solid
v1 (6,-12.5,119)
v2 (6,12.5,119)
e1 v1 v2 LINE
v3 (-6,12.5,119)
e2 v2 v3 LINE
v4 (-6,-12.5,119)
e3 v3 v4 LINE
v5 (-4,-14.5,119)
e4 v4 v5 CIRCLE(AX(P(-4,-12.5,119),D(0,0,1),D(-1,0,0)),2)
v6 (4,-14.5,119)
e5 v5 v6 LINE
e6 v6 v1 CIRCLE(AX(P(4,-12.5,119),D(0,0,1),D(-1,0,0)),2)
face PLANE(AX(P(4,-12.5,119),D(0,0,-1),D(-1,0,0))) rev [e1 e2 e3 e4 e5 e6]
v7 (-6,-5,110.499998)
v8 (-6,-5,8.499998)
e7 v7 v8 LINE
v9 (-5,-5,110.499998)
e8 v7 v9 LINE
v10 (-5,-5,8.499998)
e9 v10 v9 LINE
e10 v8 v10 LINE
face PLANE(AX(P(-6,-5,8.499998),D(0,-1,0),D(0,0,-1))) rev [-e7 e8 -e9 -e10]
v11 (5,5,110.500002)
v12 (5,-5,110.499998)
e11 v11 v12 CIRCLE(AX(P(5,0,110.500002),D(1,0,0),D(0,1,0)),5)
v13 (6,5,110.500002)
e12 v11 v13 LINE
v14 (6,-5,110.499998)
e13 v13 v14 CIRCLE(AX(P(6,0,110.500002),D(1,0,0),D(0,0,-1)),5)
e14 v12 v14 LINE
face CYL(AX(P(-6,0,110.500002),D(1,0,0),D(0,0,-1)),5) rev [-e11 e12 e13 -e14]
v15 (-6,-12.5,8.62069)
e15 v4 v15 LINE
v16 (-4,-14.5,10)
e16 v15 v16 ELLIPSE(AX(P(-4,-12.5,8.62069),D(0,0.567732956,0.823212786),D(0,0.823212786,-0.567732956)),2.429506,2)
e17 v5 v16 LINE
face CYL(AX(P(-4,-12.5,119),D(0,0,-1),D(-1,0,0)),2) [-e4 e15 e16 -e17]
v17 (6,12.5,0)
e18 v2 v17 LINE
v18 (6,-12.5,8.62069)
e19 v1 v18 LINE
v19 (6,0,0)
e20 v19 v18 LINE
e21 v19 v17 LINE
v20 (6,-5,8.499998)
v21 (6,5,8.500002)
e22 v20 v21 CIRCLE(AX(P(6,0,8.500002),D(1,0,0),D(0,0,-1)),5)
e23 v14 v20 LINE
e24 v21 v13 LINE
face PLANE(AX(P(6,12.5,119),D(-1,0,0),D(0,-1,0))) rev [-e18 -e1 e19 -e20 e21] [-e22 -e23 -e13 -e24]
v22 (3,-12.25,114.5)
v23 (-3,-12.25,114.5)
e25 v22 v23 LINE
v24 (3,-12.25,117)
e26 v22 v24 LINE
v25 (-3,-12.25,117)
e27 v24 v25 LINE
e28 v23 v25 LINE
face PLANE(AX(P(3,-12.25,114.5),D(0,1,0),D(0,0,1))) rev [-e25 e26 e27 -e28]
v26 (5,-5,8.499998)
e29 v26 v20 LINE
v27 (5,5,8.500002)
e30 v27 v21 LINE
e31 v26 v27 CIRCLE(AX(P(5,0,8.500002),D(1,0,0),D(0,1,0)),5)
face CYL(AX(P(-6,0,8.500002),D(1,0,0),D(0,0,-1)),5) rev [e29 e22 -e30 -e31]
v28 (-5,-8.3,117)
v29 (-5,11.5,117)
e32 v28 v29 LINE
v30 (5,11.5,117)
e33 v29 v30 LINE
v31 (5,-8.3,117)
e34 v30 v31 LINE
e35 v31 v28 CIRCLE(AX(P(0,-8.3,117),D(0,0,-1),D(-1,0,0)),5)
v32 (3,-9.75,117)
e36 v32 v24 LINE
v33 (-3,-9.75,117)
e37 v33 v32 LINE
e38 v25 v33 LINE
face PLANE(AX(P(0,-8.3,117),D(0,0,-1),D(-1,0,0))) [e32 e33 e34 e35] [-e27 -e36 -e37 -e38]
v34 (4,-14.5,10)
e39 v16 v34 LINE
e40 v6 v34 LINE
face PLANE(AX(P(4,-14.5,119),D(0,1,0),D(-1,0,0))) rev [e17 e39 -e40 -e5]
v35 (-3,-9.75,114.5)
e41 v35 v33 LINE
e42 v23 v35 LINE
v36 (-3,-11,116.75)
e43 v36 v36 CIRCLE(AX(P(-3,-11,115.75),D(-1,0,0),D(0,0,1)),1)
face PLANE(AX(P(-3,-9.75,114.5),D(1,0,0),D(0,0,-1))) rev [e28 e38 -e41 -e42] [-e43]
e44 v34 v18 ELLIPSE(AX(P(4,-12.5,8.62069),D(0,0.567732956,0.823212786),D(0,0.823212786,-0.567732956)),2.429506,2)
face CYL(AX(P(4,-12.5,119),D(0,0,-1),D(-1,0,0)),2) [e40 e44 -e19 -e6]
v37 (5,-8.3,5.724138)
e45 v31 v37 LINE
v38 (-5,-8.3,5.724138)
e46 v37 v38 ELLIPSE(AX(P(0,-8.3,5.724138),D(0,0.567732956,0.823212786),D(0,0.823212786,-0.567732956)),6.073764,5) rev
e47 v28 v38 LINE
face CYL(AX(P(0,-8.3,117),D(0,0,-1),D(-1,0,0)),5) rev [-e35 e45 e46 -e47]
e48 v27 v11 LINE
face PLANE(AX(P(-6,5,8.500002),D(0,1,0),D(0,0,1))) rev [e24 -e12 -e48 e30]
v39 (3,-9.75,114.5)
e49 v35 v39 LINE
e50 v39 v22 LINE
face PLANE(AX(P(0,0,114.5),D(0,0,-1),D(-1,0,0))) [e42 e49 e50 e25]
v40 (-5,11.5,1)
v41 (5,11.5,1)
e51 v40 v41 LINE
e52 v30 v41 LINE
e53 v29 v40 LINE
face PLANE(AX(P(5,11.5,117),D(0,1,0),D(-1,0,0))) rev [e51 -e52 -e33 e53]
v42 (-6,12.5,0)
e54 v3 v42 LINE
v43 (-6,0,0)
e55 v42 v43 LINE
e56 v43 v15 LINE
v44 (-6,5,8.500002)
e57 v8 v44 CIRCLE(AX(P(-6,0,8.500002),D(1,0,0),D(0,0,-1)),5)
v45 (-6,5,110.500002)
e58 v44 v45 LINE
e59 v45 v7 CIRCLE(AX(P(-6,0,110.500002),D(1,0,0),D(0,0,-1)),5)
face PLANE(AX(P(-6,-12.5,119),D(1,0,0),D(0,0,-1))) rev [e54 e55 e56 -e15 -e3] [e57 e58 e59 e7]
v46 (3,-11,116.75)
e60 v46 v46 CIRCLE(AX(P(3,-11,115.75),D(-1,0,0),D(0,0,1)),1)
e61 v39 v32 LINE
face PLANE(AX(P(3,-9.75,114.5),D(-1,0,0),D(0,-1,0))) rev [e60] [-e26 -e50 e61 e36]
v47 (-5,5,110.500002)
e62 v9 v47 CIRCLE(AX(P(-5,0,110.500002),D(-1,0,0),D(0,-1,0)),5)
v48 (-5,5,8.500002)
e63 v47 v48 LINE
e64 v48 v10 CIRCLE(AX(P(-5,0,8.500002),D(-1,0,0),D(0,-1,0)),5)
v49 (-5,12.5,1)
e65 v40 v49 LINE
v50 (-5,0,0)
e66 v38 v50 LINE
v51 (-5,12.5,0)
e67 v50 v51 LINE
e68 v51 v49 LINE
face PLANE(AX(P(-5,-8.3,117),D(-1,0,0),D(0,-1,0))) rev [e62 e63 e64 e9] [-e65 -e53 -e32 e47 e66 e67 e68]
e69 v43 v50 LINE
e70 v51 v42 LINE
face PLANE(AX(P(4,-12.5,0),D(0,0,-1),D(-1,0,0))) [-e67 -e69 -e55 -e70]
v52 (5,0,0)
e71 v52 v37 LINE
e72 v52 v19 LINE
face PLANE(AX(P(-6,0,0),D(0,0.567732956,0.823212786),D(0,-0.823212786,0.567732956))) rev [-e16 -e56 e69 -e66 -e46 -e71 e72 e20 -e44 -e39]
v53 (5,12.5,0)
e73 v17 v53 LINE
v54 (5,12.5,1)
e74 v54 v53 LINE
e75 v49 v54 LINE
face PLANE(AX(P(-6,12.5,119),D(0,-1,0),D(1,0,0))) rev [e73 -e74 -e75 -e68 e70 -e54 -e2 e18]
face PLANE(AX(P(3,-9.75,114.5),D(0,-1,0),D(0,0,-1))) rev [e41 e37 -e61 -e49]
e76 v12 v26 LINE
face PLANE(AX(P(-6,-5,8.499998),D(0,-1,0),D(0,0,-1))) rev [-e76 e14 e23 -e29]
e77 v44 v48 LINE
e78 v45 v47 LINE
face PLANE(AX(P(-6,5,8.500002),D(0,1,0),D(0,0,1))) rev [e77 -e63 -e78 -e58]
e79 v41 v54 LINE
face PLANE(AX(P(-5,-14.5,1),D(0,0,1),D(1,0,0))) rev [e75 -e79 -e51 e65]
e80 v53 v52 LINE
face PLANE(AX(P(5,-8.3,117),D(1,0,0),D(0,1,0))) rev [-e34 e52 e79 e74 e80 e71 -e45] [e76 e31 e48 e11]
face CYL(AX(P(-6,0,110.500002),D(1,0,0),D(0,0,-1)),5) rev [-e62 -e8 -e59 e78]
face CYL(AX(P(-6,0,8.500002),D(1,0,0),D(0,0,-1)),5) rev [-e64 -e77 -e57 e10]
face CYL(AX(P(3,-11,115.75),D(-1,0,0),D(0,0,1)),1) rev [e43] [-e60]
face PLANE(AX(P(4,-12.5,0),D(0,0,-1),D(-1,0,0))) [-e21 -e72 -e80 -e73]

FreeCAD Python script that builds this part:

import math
import FreeCAD as App
import Part
import Sketcher


def add_polygon(sketch, points):
    """Adds a closed chain of lines whose ends are joined by coincident constraints."""
    first, n = sketch.GeometryCount, len(points)
    for a, b in zip(points, points[1:] + points[:1]):
        sketch.addGeometry(Part.LineSegment(App.Vector(*a, 0), App.Vector(*b, 0)), False)
    for i in range(n):
        sketch.addConstraint(Sketcher.Constraint("Coincident", first + i, 2, first + (i + 1) % n, 1))

doc = App.newDocument("Part")
body = doc.addObject("PartDesign::Body", "Body")

# Sketch on XY plane
sketch1 = doc.addObject("Sketcher::SketchObject", "Sketch")
body.addObject(sketch1)
sketch1.AttachmentSupport = (doc.XY_Plane, [""])
sketch1.MapMode = "FlatFace"
sketch1.addGeometry(Part.LineSegment(App.Vector(6, 12.5, 0), App.Vector(-6, 12.5, 0)), False)
sketch1.addGeometry(Part.LineSegment(App.Vector(-6, 12.5, 0), App.Vector(-6, -12.5, 0)), False)
sketch1.addGeometry(Part.ArcOfCircle(Part.Circle(App.Vector(-4, -12.5, 0), App.Vector(0, 0, 1), 2), math.radians(-180), math.radians(-90)), False)
sketch1.addGeometry(Part.LineSegment(App.Vector(-4, -14.5, 0), App.Vector(4, -14.5, 0)), False)
sketch1.addGeometry(Part.ArcOfCircle(Part.Circle(App.Vector(4, -12.5, 0), App.Vector(0, 0, 1), 2), math.radians(-90), math.radians(0)), False)
sketch1.addGeometry(Part.LineSegment(App.Vector(6, -12.5, 0), App.Vector(6, 12.5, 0)), False)
sketch1.addConstraint(Sketcher.Constraint("Coincident", 0, 2, 1, 1))
sketch1.addConstraint(Sketcher.Constraint("Tangent", 1, 2, 2, 1))
sketch1.addConstraint(Sketcher.Constraint("Tangent", 2, 2, 3, 1))
sketch1.addConstraint(Sketcher.Constraint("Tangent", 3, 2, 4, 1))
sketch1.addConstraint(Sketcher.Constraint("Tangent", 4, 2, 5, 1))
sketch1.addConstraint(Sketcher.Constraint("Coincident", 5, 2, 0, 1))
sketch1.addConstraint(Sketcher.Constraint("Horizontal", 0))
sketch1.addConstraint(Sketcher.Constraint("Vertical", 1))
sketch1.addConstraint(Sketcher.Constraint("Horizontal", 3))
sketch1.addConstraint(Sketcher.Constraint("Vertical", 5))
sketch1.addConstraint(Sketcher.Constraint("Equal", 2, 4))
sketch1.addConstraint(Sketcher.Constraint("Symmetric", 0, 2, 4, 2, -1, 1))
sketch1.addConstraint(Sketcher.Constraint("Radius", 2, 2.0))
sketch1.addConstraint(Sketcher.Constraint("DistanceX", 0, 2, 0, 1, 12.0))
sketch1.addConstraint(Sketcher.Constraint("DistanceY", 1, 2, 1, 1, 25.0))
pad1 = doc.addObject("PartDesign::Pad", "Pad")
body.addObject(pad1)
pad1.Profile = sketch1
pad1.Length = 119

# Sketch on XY plane
sketch2 = doc.addObject("Sketcher::SketchObject", "Sketch001")
body.addObject(sketch2)
sketch2.AttachmentSupport = (doc.XY_Plane, [""])
sketch2.MapMode = "FlatFace"
sketch2.addGeometry(Part.LineSegment(App.Vector(5, 11.5, 0), App.Vector(5, -8.3, 0)), False)
sketch2.addGeometry(Part.ArcOfCircle(Part.Circle(App.Vector(0, -8.3, 0), App.Vector(0, 0, 1), 5), math.radians(180), math.radians(360)), False)
sketch2.addGeometry(Part.LineSegment(App.Vector(-5, -8.3, 0), App.Vector(-5, 11.5, 0)), False)
sketch2.addGeometry(Part.LineSegment(App.Vector(-5, 11.5, 0), App.Vector(5, 11.5, 0)), False)
sketch2.addConstraint(Sketcher.Constraint("Tangent", 0, 2, 1, 2))
sketch2.addConstraint(Sketcher.Constraint("Tangent", 1, 1, 2, 1))
sketch2.addConstraint(Sketcher.Constraint("Coincident", 2, 2, 3, 1))
sketch2.addConstraint(Sketcher.Constraint("Coincident", 3, 2, 0, 1))
sketch2.addConstraint(Sketcher.Constraint("Vertical", 0))
sketch2.addConstraint(Sketcher.Constraint("Vertical", 2))
sketch2.addConstraint(Sketcher.Constraint("Horizontal", 3))
sketch2.addConstraint(Sketcher.Constraint("PointOnObject", 1, 3, -2))
sketch2.addConstraint(Sketcher.Constraint("Radius", 1, 5.0))
sketch2.addConstraint(Sketcher.Constraint("DistanceY", 0, 2, 0, 1, 19.8))
sketch2.addConstraint(Sketcher.Constraint("DistanceY", 1, 3, -1, 1, 8.3))
pocket1 = doc.addObject("PartDesign::Pocket", "Pocket")
body.addObject(pocket1)
pocket1.Profile = sketch2
pocket1.Length = 117
pocket1.Reversed = True

# Sketch on YZ plane
sketch3 = doc.addObject("Sketcher::SketchObject", "Sketch002")
body.addObject(sketch3)
sketch3.AttachmentSupport = (doc.YZ_Plane, [""])
sketch3.MapMode = "FlatFace"
sketch3.AttachmentOffset = App.Placement(App.Vector(0, 0, 6), App.Rotation())
sketch3.addGeometry(Part.LineSegment(App.Vector(-5, 110.499998, 0), App.Vector(-5, 8.499998, 0)), False)
sketch3.addGeometry(Part.ArcOfCircle(Part.Circle(App.Vector(0, 8.500002, 0), App.Vector(0, 0, 1), 5), math.radians(-179.99995), math.radians(0)), False)
sketch3.addGeometry(Part.LineSegment(App.Vector(5, 8.500002, 0), App.Vector(5, 110.500002, 0)), False)
sketch3.addGeometry(Part.ArcOfCircle(Part.Circle(App.Vector(0, 110.500002, 0), App.Vector(0, 0, 1), 5), math.radians(0), math.radians(180.00005)), False)
sketch3.addConstraint(Sketcher.Constraint("Tangent", 0, 2, 1, 1))
sketch3.addConstraint(Sketcher.Constraint("Tangent", 1, 2, 2, 1))
sketch3.addConstraint(Sketcher.Constraint("Tangent", 2, 2, 3, 1))
sketch3.addConstraint(Sketcher.Constraint("Tangent", 3, 2, 0, 1))
sketch3.addConstraint(Sketcher.Constraint("Vertical", 0))
sketch3.addConstraint(Sketcher.Constraint("Vertical", 2))
sketch3.addConstraint(Sketcher.Constraint("PointOnObject", 1, 3, -2))
sketch3.addConstraint(Sketcher.Constraint("Radius", 1, 5.0))
sketch3.addConstraint(Sketcher.Constraint("DistanceY", 0, 2, 0, 1, 102.0))
sketch3.addConstraint(Sketcher.Constraint("DistanceY", -1, 1, 1, 3, 8.500002))
pocket2 = doc.addObject("PartDesign::Pocket", "Pocket001")
body.addObject(pocket2)
pocket2.Profile = sketch3
pocket2.Type = "ThroughAll"

# Sketch on XZ plane
sketch4 = doc.addObject("Sketcher::SketchObject", "Sketch003")
body.addObject(sketch4)
sketch4.AttachmentSupport = (doc.XZ_Plane, [""])
sketch4.MapMode = "FlatFace"
sketch4.AttachmentOffset = App.Placement(App.Vector(0, 0, -12.5), App.Rotation())
add_polygon(sketch4, [(-5, -1), (-5, 1), (5, 1), (5, -1)])  # lines 0-3
sketch4.addConstraint(Sketcher.Constraint("Vertical", 0))
sketch4.addConstraint(Sketcher.Constraint("Horizontal", 1))
sketch4.addConstraint(Sketcher.Constraint("Vertical", 2))
sketch4.addConstraint(Sketcher.Constraint("Horizontal", 3))
sketch4.addConstraint(Sketcher.Constraint("Symmetric", 0, 2, 2, 2, -1, 1))
sketch4.addConstraint(Sketcher.Constraint("DistanceX", 1, 1, 1, 2, 10.0))
sketch4.addConstraint(Sketcher.Constraint("DistanceY", 0, 1, 0, 2, 2.0))
pocket3 = doc.addObject("PartDesign::Pocket", "Pocket002")
body.addObject(pocket3)
pocket3.Profile = sketch4
pocket3.Type = "ThroughAll"
pocket3.Reversed = True

# Sketch on YZ plane
sketch5 = doc.addObject("Sketcher::SketchObject", "Sketch004")
body.addObject(sketch5)
sketch5.AttachmentSupport = (doc.YZ_Plane, [""])
sketch5.MapMode = "FlatFace"
add_polygon(sketch5, [(0, 0), (-14.5, 10), (-14.5, 0)])  # lines 0-2
sketch5.addConstraint(Sketcher.Constraint("Vertical", 1))
sketch5.addConstraint(Sketcher.Constraint("Horizontal", 2))
sketch5.addConstraint(Sketcher.Constraint("Coincident", 2, 2, -1, 1))
sketch5.addConstraint(Sketcher.Constraint("DistanceY", 1, 2, 1, 1, 10.0))
sketch5.addConstraint(Sketcher.Constraint("DistanceX", 2, 1, 2, 2, 14.5))
pocket4 = doc.addObject("PartDesign::Pocket", "Pocket003")
body.addObject(pocket4)
pocket4.Profile = sketch5
pocket4.Type = "ThroughAll"
pocket4.Midplane = True

# Sketch on XY plane
sketch6 = doc.addObject("Sketcher::SketchObject", "Sketch005")
body.addObject(sketch6)
sketch6.AttachmentSupport = (doc.XY_Plane, [""])
sketch6.MapMode = "FlatFace"
sketch6.AttachmentOffset = App.Placement(App.Vector(0, 0, 117), App.Rotation())
add_polygon(sketch6, [(3, -9.75), (3, -12.25), (-3, -12.25), (-3, -9.75)])  # lines 0-3
sketch6.addConstraint(Sketcher.Constraint("Vertical", 0))
sketch6.addConstraint(Sketcher.Constraint("Horizontal", 1))
sketch6.addConstraint(Sketcher.Constraint("Vertical", 2))
sketch6.addConstraint(Sketcher.Constraint("Horizontal", 3))
sketch6.addConstraint(Sketcher.Constraint("DistanceX", 1, 2, 1, 1, 6.0))
sketch6.addConstraint(Sketcher.Constraint("DistanceY", 0, 2, 0, 1, 2.5))
sketch6.addConstraint(Sketcher.Constraint("DistanceX", -1, 1, 0, 2, 3.0))
sketch6.addConstraint(Sketcher.Constraint("DistanceY", 0, 2, -1, 1, 12.25))
pad2 = doc.addObject("PartDesign::Pad", "Pad001")
body.addObject(pad2)
pad2.Profile = sketch6
pad2.Length = 2.5
pad2.Reversed = True

# Sketch on YZ plane
sketch7 = doc.addObject("Sketcher::SketchObject", "Sketch006")
body.addObject(sketch7)
sketch7.AttachmentSupport = (doc.YZ_Plane, [""])
sketch7.MapMode = "FlatFace"
sketch7.AttachmentOffset = App.Placement(App.Vector(0, 0, -3), App.Rotation())
sketch7.addGeometry(Part.Circle(App.Vector(-11, 115.75, 0), App.Vector(0, 0, 1), 1), False)
sketch7.addConstraint(Sketcher.Constraint("Diameter", 0, 2.0))
sketch7.addConstraint(Sketcher.Constraint("DistanceX", 0, 3, -1, 1, 11.0))
sketch7.addConstraint(Sketcher.Constraint("DistanceY", -1, 1, 0, 3, 115.75))
pocket5 = doc.addObject("PartDesign::Pocket", "Pocket004")
body.addObject(pocket5)
pocket5.Profile = sketch7
pocket5.Length = 6
pocket5.Reversed = True

doc.recompute()
